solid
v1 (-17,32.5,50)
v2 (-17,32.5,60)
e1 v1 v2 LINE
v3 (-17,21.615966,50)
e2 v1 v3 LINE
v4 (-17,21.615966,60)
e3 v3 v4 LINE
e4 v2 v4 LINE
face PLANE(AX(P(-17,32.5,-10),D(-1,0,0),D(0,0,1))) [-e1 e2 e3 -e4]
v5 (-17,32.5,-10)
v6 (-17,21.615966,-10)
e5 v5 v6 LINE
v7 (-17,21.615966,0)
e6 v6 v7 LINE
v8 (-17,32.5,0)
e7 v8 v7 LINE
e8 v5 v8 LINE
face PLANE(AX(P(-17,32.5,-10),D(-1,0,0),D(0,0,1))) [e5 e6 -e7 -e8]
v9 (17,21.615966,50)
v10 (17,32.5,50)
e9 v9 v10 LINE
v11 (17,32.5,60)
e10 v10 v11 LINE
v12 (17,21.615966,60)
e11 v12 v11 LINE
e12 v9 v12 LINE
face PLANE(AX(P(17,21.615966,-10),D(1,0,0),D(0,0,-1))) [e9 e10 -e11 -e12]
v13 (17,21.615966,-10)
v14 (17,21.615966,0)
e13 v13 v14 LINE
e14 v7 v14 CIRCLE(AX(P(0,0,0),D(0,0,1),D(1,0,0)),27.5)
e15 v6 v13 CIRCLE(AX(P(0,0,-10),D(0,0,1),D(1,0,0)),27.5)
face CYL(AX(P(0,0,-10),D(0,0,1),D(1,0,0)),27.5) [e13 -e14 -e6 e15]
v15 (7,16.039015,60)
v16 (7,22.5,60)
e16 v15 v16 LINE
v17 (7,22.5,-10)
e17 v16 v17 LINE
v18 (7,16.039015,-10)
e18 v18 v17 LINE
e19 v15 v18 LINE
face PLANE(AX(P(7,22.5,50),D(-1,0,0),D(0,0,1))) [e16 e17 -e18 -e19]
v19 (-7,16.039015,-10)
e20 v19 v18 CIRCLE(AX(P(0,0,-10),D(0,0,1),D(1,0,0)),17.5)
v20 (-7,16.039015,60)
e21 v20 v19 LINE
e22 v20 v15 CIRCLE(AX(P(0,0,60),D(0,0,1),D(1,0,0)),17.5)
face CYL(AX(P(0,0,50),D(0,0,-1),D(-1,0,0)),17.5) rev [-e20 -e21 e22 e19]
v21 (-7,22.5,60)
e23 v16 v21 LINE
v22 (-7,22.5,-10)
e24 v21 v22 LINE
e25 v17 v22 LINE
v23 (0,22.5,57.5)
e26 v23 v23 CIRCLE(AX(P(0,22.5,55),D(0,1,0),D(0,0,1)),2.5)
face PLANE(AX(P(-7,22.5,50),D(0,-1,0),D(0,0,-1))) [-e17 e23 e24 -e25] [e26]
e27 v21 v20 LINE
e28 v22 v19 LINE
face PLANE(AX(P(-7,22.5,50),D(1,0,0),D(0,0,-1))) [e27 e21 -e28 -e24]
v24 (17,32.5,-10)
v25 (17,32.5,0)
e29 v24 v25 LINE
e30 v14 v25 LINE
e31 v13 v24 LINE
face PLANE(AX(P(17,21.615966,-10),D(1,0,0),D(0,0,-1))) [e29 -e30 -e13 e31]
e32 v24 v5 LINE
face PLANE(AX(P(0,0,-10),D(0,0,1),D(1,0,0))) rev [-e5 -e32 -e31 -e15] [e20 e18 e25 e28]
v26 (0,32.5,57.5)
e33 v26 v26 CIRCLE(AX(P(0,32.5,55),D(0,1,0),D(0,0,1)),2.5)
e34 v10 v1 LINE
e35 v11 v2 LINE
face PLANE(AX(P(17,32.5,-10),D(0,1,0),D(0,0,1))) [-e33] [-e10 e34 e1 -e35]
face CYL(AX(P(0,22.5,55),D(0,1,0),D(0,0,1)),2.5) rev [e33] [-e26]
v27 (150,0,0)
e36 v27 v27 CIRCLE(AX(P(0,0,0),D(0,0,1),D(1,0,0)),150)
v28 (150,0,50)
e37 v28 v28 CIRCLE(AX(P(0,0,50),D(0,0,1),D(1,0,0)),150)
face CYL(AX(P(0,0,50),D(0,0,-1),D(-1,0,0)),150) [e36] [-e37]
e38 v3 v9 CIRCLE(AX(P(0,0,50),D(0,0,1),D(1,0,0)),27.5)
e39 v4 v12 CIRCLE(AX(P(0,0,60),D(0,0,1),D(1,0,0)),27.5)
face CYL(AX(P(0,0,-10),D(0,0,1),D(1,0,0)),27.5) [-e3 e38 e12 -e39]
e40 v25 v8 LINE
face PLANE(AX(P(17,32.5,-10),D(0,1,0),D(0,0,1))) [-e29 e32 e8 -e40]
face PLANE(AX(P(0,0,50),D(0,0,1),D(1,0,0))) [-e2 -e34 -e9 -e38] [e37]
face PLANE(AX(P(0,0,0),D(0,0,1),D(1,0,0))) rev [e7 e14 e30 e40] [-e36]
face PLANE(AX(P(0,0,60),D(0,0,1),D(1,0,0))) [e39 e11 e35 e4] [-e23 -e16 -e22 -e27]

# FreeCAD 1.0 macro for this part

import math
import FreeCAD as App
import Part
import Sketcher

doc = App.newDocument("Part")
body = doc.addObject("PartDesign::Body", "Body")

sketch1 = body.newObject("Sketcher::SketchObject", "Sketch")
sketch1.AttachmentSupport = (doc.getObject("XY_Plane"), [""])
sketch1.MapMode = "FlatFace"
sketch1.addGeometry(Part.Circle(App.Vector(0, 0, 0), App.Vector(0, 0, 1), 150), False)
sketch1.addGeometry(Part.LineSegment(App.Vector(-7, 16, 0), App.Vector(-7, 22, 0)), False)
sketch1.addGeometry(Part.LineSegment(App.Vector(-7, 22, 0), App.Vector(7, 22, 0)), False)
sketch1.addGeometry(Part.LineSegment(App.Vector(7, 22, 0), App.Vector(7, 16, 0)), False)
sketch1.addGeometry(Part.ArcOfCircle(Part.Circle(App.Vector(0, 0, 0), App.Vector(0, 0, 1), 18), math.radians(114), math.radians(426)), False)
sketch1.addConstraint(Sketcher.Constraint("Coincident", 1, 2, 2, 1))
sketch1.addConstraint(Sketcher.Constraint("Coincident", 2, 2, 3, 1))
sketch1.addConstraint(Sketcher.Constraint("Coincident", 3, 2, 4, 2))
sketch1.addConstraint(Sketcher.Constraint("Coincident", 4, 1, 1, 1))
sketch1.addConstraint(Sketcher.Constraint("Vertical", 1))
sketch1.addConstraint(Sketcher.Constraint("Horizontal", 2))
sketch1.addConstraint(Sketcher.Constraint("Vertical", 3))
sketch1.addConstraint(Sketcher.Constraint("Coincident", 0, 3, -1, 1))
sketch1.addConstraint(Sketcher.Constraint("Coincident", 4, 3, -1, 1))
sketch1.addConstraint(Sketcher.Constraint("Horizontal", 3, 2, 4, 1))
sketch1.addConstraint(Sketcher.Constraint("Diameter", 0, 300.0))
sketch1.addConstraint(Sketcher.Constraint("Radius", 4, 17.5))
sketch1.addConstraint(Sketcher.Constraint("DistanceX", 2, 1, 2, 2, 14.0))
sketch1.addConstraint(Sketcher.Constraint("DistanceY", -1, 1, 1, 2, 22.5))
pad1 = body.newObject("PartDesign::Pad", "Pad")
pad1.Profile = sketch1
pad1.Length = 50

sketch2 = body.newObject("Sketcher::SketchObject", "Sketch001")
sketch2.AttachmentSupport = (doc.getObject("XY_Plane"), [""])
sketch2.MapMode = "FlatFace"
sketch2.AttachmentOffset = App.Placement(App.Vector(0, 0, 50), App.Rotation())
sketch2.addGeometry(Part.LineSegment(App.Vector(17, 22, 0), App.Vector(17, 32, 0)), False)
sketch2.addGeometry(Part.LineSegment(App.Vector(17, 32, 0), App.Vector(-17, 32, 0)), False)
sketch2.addGeometry(Part.LineSegment(App.Vector(-17, 32, 0), App.Vector(-17, 22, 0)), False)
sketch2.addGeometry(Part.ArcOfCircle(Part.Circle(App.Vector(0, 0, 0), App.Vector(0, 0, 1), 28), math.radians(128), math.radians(412)), False)
sketch2.addGeometry(Part.LineSegment(App.Vector(7, 22, 0), App.Vector(7, 16, 0)), False)
sketch2.addGeometry(Part.ArcOfCircle(Part.Circle(App.Vector(0, 0, 0), App.Vector(0, 0, 1), 18), math.radians(114), math.radians(426)), False)
sketch2.addGeometry(Part.LineSegment(App.Vector(-7, 16, 0), App.Vector(-7, 22, 0)), False)
sketch2.addGeometry(Part.LineSegment(App.Vector(-7, 22, 0), App.Vector(7, 22, 0)), False)
sketch2.addConstraint(Sketcher.Constraint("Coincident", 0, 2, 1, 1))
sketch2.addConstraint(Sketcher.Constraint("Coincident", 1, 2, 2, 1))
sketch2.addConstraint(Sketcher.Constraint("Coincident", 2, 2, 3, 1))
sketch2.addConstraint(Sketcher.Constraint("Coincident", 3, 2, 0, 1))
sketch2.addConstraint(Sketcher.Constraint("Coincident", 4, 2, 5, 2))
sketch2.addConstraint(Sketcher.Constraint("Coincident", 5, 1, 6, 1))
sketch2.addConstraint(Sketcher.Constraint("Coincident", 6, 2, 7, 1))
sketch2.addConstraint(Sketcher.Constraint("Coincident", 7, 2, 4, 1))
sketch2.addConstraint(Sketcher.Constraint("Vertical", 0))
sketch2.addConstraint(Sketcher.Constraint("Horizontal", 1))
sketch2.addConstraint(Sketcher.Constraint("Vertical", 2))
sketch2.addConstraint(Sketcher.Constraint("Vertical", 4))
sketch2.addConstraint(Sketcher.Constraint("Vertical", 6))
sketch2.addConstraint(Sketcher.Constraint("Horizontal", 7))
sketch2.addConstraint(Sketcher.Constraint("Coincident", 3, 3, -1, 1))
sketch2.addConstraint(Sketcher.Constraint("Coincident", 5, 3, -1, 1))
sketch2.addConstraint(Sketcher.Constraint("Horizontal", 2, 2, 3, 2))
sketch2.addConstraint(Sketcher.Constraint("Horizontal", 4, 2, 5, 1))
sketch2.addConstraint(Sketcher.Constraint("Radius", 3, 27.5))
sketch2.addConstraint(Sketcher.Constraint("Radius", 5, 17.5))
sketch2.addConstraint(Sketcher.Constraint("DistanceX", 1, 2, 1, 1, 34.0))
sketch2.addConstraint(Sketcher.Constraint("DistanceX", 7, 1, 7, 2, 14.0))
sketch2.addConstraint(Sketcher.Constraint("DistanceY", 6, 2, 1, 2, 10.0))
sketch2.addConstraint(Sketcher.Constraint("DistanceY", -1, 1, 0, 2, 32.5))
pad2 = body.newObject("PartDesign::Pad", "Pad001")
pad2.Profile = sketch2
pad2.Type = "TwoLengths"
pad2.Length = 10
pad2.Length2 = 60

sketch3 = body.newObject("Sketcher::SketchObject", "Sketch002")
sketch3.AttachmentSupport = (doc.getObject("XZ_Plane"), [""])
sketch3.MapMode = "FlatFace"
sketch3.AttachmentOffset = App.Placement(App.Vector(0, 0, -32.5), App.Rotation())
sketch3.addGeometry(Part.Circle(App.Vector(0, 55, 0), App.Vector(0, 0, 1), 2.5), False)
sketch3.addConstraint(Sketcher.Constraint("PointOnObject", 0, 3, -2))
sketch3.addConstraint(Sketcher.Constraint("Diameter", 0, 5.0))
sketch3.addConstraint(Sketcher.Constraint("DistanceY", -1, 1, 0, 3, 55.0))
pocket1 = body.newObject("PartDesign::Pocket", "Pocket")
pocket1.Profile = sketch3
pocket1.Length = 10
pocket1.Reversed = True

doc.recompute()
